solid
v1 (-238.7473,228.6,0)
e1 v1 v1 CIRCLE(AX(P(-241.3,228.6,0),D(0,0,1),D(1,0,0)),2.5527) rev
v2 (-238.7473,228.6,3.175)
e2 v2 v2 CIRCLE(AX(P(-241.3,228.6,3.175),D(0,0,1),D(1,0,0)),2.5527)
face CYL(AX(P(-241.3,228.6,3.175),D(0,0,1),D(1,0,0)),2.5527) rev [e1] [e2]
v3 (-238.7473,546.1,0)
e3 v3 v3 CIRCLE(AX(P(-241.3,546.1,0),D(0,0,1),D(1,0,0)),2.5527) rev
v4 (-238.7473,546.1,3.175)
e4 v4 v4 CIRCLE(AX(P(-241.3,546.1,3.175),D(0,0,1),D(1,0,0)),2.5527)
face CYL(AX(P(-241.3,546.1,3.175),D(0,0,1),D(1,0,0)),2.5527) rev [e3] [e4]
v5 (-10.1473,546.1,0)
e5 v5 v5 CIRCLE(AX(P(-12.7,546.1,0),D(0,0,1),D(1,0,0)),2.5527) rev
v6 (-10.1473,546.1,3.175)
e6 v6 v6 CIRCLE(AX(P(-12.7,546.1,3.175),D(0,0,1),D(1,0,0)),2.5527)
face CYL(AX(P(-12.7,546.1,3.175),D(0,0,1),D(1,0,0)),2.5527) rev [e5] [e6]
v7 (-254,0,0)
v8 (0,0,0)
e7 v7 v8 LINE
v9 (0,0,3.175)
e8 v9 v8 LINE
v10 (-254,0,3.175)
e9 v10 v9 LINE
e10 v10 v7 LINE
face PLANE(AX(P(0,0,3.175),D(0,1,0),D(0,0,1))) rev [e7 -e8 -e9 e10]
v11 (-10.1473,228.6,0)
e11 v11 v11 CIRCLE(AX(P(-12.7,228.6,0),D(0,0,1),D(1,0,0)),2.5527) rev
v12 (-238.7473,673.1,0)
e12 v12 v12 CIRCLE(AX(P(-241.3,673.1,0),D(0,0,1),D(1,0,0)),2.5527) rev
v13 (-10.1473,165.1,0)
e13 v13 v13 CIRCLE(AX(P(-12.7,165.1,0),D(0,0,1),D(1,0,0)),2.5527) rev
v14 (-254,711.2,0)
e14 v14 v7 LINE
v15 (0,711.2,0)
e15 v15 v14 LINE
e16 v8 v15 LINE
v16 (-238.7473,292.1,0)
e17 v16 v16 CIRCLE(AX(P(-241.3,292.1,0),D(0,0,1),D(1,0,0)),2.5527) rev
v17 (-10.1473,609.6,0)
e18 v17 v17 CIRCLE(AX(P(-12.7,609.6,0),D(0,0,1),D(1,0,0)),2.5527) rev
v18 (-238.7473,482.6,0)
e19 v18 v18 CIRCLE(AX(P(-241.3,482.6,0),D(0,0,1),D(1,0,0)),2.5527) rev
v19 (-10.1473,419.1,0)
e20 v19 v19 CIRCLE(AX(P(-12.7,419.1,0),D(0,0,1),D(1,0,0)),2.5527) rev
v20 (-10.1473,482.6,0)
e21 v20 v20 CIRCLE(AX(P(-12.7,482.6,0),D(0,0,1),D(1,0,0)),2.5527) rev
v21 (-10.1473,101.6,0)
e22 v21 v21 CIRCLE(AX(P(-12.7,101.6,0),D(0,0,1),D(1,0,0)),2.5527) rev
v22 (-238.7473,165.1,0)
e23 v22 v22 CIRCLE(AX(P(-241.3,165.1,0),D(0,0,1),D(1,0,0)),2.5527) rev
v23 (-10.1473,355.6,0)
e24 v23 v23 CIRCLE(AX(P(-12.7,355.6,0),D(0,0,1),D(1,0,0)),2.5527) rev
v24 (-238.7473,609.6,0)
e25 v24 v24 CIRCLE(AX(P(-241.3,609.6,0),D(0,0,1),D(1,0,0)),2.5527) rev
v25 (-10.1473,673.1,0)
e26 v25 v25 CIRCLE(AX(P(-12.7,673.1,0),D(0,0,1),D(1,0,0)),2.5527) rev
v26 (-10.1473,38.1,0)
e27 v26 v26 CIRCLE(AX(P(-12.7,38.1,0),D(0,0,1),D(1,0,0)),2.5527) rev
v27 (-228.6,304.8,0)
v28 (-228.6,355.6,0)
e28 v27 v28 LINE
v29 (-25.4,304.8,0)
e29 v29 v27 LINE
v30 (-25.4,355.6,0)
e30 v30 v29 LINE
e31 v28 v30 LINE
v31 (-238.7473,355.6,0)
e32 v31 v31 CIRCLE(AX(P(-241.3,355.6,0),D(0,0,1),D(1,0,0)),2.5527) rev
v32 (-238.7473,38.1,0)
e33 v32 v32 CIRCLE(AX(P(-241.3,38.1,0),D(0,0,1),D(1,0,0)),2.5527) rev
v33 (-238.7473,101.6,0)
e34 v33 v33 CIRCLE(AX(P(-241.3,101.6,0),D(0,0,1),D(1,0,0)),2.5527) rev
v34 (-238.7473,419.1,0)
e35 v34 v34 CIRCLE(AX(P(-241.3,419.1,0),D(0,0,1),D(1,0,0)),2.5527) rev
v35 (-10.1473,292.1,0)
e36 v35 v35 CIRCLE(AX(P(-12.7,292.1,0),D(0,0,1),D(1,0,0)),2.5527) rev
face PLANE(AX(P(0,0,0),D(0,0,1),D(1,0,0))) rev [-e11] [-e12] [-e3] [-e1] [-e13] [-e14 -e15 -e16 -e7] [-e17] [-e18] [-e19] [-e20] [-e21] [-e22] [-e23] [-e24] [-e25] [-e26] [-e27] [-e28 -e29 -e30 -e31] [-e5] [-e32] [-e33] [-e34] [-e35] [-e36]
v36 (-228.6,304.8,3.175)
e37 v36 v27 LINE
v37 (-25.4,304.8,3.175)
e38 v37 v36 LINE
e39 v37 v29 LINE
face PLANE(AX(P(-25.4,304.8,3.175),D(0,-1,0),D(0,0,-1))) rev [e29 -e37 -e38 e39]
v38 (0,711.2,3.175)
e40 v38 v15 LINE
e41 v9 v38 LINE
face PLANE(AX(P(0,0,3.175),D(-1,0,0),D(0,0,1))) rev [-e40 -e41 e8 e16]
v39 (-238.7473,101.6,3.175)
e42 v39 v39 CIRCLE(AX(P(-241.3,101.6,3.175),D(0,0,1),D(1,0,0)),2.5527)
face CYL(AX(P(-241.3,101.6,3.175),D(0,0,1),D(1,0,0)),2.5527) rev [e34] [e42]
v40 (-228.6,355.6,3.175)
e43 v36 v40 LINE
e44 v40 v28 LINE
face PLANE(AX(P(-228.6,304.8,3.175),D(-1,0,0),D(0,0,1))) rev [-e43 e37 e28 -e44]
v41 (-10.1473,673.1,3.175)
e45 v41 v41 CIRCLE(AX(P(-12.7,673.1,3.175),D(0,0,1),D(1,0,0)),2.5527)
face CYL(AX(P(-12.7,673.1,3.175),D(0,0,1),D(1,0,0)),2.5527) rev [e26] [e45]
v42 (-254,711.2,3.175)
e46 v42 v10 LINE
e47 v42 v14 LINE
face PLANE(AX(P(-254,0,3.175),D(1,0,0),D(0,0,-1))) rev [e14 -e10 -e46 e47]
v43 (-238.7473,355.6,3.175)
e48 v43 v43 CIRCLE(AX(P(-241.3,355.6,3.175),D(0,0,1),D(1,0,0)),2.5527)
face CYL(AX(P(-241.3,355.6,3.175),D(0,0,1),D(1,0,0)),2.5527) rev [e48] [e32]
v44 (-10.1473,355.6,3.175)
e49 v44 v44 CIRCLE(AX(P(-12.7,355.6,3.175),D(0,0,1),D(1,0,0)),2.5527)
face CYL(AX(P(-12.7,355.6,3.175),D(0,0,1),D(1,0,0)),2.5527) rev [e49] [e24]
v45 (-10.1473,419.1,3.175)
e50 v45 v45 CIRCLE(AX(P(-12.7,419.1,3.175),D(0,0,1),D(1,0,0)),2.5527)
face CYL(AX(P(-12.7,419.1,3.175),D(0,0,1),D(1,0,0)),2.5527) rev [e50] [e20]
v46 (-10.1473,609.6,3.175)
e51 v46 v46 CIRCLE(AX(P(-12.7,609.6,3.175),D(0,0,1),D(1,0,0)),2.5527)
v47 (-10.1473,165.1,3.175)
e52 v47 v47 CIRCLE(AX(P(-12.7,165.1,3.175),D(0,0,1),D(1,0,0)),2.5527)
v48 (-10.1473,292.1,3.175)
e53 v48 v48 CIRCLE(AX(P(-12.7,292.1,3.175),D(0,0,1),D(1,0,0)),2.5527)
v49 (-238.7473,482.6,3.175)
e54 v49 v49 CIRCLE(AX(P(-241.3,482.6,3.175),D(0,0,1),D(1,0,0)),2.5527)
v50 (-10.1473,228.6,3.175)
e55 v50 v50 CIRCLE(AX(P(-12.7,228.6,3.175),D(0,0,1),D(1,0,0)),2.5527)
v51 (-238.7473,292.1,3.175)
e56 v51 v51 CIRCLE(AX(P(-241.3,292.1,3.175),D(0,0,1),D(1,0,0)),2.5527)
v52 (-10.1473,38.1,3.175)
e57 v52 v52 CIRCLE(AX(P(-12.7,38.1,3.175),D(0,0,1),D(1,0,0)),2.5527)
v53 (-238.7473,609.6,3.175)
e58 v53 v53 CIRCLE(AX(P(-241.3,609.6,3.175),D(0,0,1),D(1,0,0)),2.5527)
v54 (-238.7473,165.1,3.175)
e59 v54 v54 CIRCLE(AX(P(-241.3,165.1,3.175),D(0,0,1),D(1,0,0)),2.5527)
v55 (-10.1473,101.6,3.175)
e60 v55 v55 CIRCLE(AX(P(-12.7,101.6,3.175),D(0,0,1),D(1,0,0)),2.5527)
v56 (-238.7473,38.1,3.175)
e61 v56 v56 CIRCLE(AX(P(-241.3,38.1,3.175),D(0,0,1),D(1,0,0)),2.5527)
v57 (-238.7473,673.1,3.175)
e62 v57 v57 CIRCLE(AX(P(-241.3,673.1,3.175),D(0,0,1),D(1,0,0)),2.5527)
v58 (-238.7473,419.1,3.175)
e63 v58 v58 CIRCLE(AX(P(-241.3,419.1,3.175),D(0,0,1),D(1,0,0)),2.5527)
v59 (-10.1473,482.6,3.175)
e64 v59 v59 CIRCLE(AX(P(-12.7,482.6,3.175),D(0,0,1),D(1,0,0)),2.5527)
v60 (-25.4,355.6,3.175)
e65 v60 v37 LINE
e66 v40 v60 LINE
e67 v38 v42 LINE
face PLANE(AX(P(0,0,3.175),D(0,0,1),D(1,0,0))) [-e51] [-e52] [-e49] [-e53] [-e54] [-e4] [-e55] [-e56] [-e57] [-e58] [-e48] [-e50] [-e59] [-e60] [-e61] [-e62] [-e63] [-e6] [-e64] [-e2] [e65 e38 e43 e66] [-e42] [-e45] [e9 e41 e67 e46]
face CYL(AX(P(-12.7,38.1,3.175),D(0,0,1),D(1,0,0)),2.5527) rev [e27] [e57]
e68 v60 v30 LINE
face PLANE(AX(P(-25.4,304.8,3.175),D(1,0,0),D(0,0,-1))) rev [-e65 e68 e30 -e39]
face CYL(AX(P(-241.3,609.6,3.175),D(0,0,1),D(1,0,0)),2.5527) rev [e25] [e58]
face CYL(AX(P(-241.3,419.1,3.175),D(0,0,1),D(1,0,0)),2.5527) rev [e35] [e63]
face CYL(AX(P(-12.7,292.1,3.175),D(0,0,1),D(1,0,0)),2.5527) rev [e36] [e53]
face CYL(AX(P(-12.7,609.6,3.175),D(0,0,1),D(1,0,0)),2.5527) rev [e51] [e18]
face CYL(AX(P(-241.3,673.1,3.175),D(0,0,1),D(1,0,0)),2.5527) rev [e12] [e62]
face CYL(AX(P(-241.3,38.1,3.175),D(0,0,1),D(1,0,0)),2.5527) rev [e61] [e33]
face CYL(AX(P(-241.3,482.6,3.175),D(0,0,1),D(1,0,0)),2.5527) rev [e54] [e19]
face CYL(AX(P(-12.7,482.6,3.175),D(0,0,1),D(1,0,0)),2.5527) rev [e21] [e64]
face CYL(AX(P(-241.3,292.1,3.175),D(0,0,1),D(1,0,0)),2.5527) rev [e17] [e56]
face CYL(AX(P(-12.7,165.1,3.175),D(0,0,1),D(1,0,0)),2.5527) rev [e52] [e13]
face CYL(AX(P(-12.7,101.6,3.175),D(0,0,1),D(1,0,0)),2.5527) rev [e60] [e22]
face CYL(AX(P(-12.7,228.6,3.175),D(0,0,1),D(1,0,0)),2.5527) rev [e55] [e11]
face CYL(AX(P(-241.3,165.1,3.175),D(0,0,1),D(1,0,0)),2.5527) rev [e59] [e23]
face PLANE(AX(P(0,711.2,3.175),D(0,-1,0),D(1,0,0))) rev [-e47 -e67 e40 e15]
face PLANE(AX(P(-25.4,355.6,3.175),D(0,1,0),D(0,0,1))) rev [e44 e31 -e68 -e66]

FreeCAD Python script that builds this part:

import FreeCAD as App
import Part
import Sketcher

V = App.Vector
Q = App.Units.Quantity

doc = App.newDocument("Part")
body = doc.addObject("PartDesign::Body", "Body")

# Sketch on XY plane
sketch1 = doc.addObject("Sketcher::SketchObject", "Sketch")
body.addObject(sketch1)
sketch1.AttachmentSupport = (doc.XY_Plane, [""])
sketch1.MapMode = "FlatFace"
sketch1.addGeometry([
    Part.LineSegment(V(-254, 711, 0), V(-254, 0, 0)),
    Part.LineSegment(V(-254, 0, 0), V(0, 0, 0)),
    Part.LineSegment(V(0, 0, 0), V(0, 711, 0)),
    Part.LineSegment(V(0, 711, 0), V(-254, 711, 0)),
], False)
sketch1.addConstraint([
    Sketcher.Constraint("Coincident", 0, 2, 1, 1),
    Sketcher.Constraint("Coincident", 1, 2, 2, 1),
    Sketcher.Constraint("Coincident", 2, 2, 3, 1),
    Sketcher.Constraint("Coincident", 3, 2, 0, 1),
    Sketcher.Constraint("Vertical", 0),
    Sketcher.Constraint("Horizontal", 1),
    Sketcher.Constraint("Vertical", 2),
    Sketcher.Constraint("Horizontal", 3),
    Sketcher.Constraint("Coincident", 1, 2, -1, 1),
    Sketcher.Constraint("DistanceX", 1, 1, 1, 2, Q("10 in")),
    Sketcher.Constraint("DistanceY", 0, 2, 0, 1, Q("28 in")),
])
pad1 = doc.addObject("PartDesign::Pad", "Pad")
body.addObject(pad1)
pad1.Profile = sketch1
pad1.Length = Q("0.125 in")

# Sketch on XY plane
sketch2 = doc.addObject("Sketcher::SketchObject", "Sketch001")
body.addObject(sketch2)
sketch2.AttachmentSupport = (doc.XY_Plane, [""])
sketch2.MapMode = "FlatFace"
sketch2.AttachmentOffset = App.Placement(V(0, 0, 0.125 * 25.4), App.Rotation())
sketch2.addGeometry([
    Part.Circle(V(-241.3, 673.1, 0), V(0, 0, 1), 2.6),
    Part.Circle(V(-12.7, 673.1, 0), V(0, 0, 1), 2.6),
], False)
sketch2.addConstraint([
    Sketcher.Constraint("Equal", 0, 1),
    Sketcher.Constraint("Horizontal", 0, 3, 1, 3),
    Sketcher.Constraint("Diameter", 0, Q("0.201 in")),
    Sketcher.Constraint("DistanceX", 0, 3, 1, 3, Q("9 in")),
    Sketcher.Constraint("DistanceX", 0, 3, -1, 1, Q("9.5 in")),
    Sketcher.Constraint("DistanceY", -1, 1, 0, 3, Q("26.5 in")),
])
doc.recompute()
hole = doc.addObject("PartDesign::Hole", "Hole")
body.addObject(hole)
hole.Profile = sketch2
hole.ThreadType = "None"
hole.Diameter = Q("0.201 in")
hole.DepthType = "ThroughAll"
doc.recompute()

linearpattern = doc.addObject("PartDesign::LinearPattern", "LinearPattern")
body.addObject(linearpattern)
linearpattern.Originals = [hole]
linearpattern.Direction = (doc.Y_Axis, [""])
linearpattern.Mode = "offset"
linearpattern.Offset = Q("2.5 in")
linearpattern.Occurrences = 11
linearpattern.Reversed = True
body.Tip = linearpattern

# Sketch on XY plane
sketch3 = doc.addObject("Sketcher::SketchObject", "Sketch002")
body.addObject(sketch3)
sketch3.AttachmentSupport = (doc.XY_Plane, [""])
sketch3.MapMode = "FlatFace"
sketch3.addGeometry([
    Part.LineSegment(V(-25, 356, 0), V(-25, 305, 0)),
    Part.LineSegment(V(-25, 305, 0), V(-229, 305, 0)),
    Part.LineSegment(V(-229, 305, 0), V(-229, 356, 0)),
    Part.LineSegment(V(-229, 356, 0), V(-25, 356, 0)),
], False)
sketch3.addConstraint([
    Sketcher.Constraint("Coincident", 0, 2, 1, 1),
    Sketcher.Constraint("Coincident", 1, 2, 2, 1),
    Sketcher.Constraint("Coincident", 2, 2, 3, 1),
    Sketcher.Constraint("Coincident", 3, 2, 0, 1),
    Sketcher.Constraint("Vertical", 0),
    Sketcher.Constraint("Horizontal", 1),
    Sketcher.Constraint("Vertical", 2),
    Sketcher.Constraint("Horizontal", 3),
    Sketcher.Constraint("DistanceX", 1, 2, 1, 1, Q("8 in")),
    Sketcher.Constraint("DistanceY", 0, 2, 0, 1, Q("2 in")),
    Sketcher.Constraint("DistanceX", 0, 2, -1, 1, Q("1 in")),
    Sketcher.Constraint("DistanceY", -1, 1, 0, 2, Q("12 in")),
])
pocket1 = doc.addObject("PartDesign::Pocket", "Pocket")
body.addObject(pocket1)
pocket1.Profile = sketch3
pocket1.Type = "ThroughAll"
pocket1.Reversed = True

doc.recompute()
